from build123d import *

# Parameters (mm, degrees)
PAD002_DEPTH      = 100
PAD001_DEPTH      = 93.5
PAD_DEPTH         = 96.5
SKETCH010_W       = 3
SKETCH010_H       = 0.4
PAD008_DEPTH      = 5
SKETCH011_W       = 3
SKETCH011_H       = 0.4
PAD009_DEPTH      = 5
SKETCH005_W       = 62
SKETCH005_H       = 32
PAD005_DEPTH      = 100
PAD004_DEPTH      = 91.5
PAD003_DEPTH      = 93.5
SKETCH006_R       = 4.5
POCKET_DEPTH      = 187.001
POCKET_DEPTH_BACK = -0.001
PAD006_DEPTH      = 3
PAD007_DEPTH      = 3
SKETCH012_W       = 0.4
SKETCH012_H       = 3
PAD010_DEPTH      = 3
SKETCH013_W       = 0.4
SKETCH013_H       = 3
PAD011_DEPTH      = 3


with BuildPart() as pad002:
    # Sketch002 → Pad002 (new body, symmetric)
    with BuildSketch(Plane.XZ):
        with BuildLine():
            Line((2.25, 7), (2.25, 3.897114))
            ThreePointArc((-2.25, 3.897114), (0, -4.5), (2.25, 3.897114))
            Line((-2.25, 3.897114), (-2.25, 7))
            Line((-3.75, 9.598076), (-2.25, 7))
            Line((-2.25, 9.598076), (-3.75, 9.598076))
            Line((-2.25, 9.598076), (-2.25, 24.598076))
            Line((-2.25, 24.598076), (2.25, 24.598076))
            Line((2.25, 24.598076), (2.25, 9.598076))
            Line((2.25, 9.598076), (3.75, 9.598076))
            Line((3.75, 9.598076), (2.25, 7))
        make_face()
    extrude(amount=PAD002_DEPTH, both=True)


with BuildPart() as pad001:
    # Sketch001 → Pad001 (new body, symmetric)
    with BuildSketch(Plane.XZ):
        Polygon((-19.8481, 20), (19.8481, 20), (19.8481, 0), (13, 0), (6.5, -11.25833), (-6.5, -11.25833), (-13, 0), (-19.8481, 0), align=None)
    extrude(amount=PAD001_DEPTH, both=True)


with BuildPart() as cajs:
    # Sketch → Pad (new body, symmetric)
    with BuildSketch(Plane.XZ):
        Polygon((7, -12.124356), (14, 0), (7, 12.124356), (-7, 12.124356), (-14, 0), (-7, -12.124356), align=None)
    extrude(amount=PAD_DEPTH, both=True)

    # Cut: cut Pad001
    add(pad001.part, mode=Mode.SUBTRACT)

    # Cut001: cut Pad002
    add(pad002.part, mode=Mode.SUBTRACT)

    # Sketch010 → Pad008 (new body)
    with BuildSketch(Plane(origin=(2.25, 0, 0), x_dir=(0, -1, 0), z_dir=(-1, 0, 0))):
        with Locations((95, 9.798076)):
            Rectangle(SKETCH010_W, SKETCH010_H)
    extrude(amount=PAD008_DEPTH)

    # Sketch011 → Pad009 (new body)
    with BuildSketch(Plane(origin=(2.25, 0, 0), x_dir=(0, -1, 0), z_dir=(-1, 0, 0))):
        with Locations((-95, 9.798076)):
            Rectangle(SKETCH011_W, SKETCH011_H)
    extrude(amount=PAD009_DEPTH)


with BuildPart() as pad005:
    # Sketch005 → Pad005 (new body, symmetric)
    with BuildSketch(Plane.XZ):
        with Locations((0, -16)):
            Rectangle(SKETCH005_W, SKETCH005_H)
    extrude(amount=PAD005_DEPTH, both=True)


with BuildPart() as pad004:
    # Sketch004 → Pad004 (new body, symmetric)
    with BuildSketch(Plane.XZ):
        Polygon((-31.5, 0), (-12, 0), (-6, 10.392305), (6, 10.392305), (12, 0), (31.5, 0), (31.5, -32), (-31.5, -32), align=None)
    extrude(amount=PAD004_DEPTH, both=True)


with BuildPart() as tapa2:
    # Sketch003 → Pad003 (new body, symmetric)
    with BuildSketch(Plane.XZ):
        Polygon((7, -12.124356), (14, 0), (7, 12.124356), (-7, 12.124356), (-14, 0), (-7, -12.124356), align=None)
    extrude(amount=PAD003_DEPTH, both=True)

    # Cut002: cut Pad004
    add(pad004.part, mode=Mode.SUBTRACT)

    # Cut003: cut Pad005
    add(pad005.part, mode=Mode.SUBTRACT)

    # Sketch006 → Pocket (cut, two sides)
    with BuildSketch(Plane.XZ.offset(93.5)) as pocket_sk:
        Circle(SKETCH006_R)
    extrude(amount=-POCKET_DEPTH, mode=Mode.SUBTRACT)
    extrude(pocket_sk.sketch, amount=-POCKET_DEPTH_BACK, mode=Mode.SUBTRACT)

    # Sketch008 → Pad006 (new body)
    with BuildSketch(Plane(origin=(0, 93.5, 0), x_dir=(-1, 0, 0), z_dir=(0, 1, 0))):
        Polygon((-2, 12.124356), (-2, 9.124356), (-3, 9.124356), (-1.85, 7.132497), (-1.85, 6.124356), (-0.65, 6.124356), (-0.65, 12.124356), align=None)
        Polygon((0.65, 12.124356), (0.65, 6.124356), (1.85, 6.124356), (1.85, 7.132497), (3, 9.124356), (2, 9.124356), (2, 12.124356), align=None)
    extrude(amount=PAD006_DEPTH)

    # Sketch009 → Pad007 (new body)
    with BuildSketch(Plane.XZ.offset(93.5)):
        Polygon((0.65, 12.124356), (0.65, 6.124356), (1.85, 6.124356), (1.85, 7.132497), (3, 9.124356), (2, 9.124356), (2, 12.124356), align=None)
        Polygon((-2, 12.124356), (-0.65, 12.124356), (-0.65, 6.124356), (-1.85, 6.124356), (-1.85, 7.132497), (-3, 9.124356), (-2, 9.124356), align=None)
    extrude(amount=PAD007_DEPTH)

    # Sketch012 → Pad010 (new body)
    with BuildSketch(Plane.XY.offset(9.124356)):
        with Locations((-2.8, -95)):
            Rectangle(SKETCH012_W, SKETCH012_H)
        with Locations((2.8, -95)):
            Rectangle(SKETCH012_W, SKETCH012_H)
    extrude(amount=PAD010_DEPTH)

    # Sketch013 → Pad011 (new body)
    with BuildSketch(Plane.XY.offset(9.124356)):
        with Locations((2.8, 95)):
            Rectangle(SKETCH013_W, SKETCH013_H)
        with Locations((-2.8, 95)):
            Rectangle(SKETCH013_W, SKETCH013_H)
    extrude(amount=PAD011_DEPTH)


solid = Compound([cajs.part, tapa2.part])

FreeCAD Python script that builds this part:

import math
import FreeCAD as App
import Part
import Sketcher
from FreeCAD import Vector
Q = App.Units.Quantity

doc = App.newDocument("Part")
body = doc.addObject("PartDesign::Body", "Body")

# Sketch on XZ plane
sketch1 = doc.addObject("Sketcher::SketchObject", "Sketch")
body.addObject(sketch1)
sketch1.AttachmentSupport = (doc.XZ_Plane, [""])
sketch1.MapMode = "FlatFace"
sketch1.addGeometry([
    Part.LineSegment(Vector(2.25, 3.897114, 0), Vector(2.25, 7, 0)),  # 0
    Part.LineSegment(Vector(2.25, 7, 0), Vector(3.75, 9.598076, 0)),  # 1
    Part.LineSegment(Vector(3.75, 9.598076, 0), Vector(2.25, 9.598076, 0)),  # 2
    Part.LineSegment(Vector(2.25, 9.598076, 0), Vector(2.25, 24.598076, 0)),  # 3
    Part.LineSegment(Vector(2.25, 24.598076, 0), Vector(-2.25, 24.598076, 0)),  # 4
    Part.LineSegment(Vector(-2.25, 24.598076, 0), Vector(-2.25, 9.598076, 0)),  # 5
    Part.LineSegment(Vector(-2.25, 9.598076, 0), Vector(-3.75, 9.598076, 0)),  # 6
    Part.LineSegment(Vector(-3.75, 9.598076, 0), Vector(-2.25, 7, 0)),  # 7
    Part.LineSegment(Vector(-2.25, 7, 0), Vector(-2.25, 3.897114, 0)),  # 8
    Part.ArcOfCircle(Part.Circle(Vector(0, 0, 0), Vector(0, 0, 1), 4.5), math.radians(120.000001), math.radians(419.999999)),  # 9
], False)
sketch1.addConstraint([
    Sketcher.Constraint("Coincident", 0, 2, 1, 1),
    Sketcher.Constraint("Coincident", 1, 2, 2, 1),
    Sketcher.Constraint("Coincident", 2, 2, 3, 1),
    Sketcher.Constraint("Coincident", 3, 2, 4, 1),
    Sketcher.Constraint("Coincident", 4, 2, 5, 1),
    Sketcher.Constraint("Coincident", 5, 2, 6, 1),
    Sketcher.Constraint("Coincident", 6, 2, 7, 1),
    Sketcher.Constraint("Coincident", 7, 2, 8, 1),
    Sketcher.Constraint("Coincident", 8, 2, 9, 1),
    Sketcher.Constraint("Coincident", 9, 2, 0, 1),
    Sketcher.Constraint("Vertical", 0),
    Sketcher.Constraint("Horizontal", 2),
    Sketcher.Constraint("Vertical", 3),
    Sketcher.Constraint("Horizontal", 4),
    Sketcher.Constraint("Vertical", 5),
    Sketcher.Constraint("Horizontal", 6),
    Sketcher.Constraint("Vertical", 8),
    Sketcher.Constraint("Coincident", 9, 3, -1, 1),
    Sketcher.Constraint("Symmetric", 2, 2, 5, 2, -2),
    Sketcher.Constraint("Symmetric", 0, 2, 7, 2, -2),
    Sketcher.Constraint("Vertical", 0, 2, 2, 2),
    Sketcher.Constraint("Equal", 2, 6),
    Sketcher.Constraint("Radius", 9, 4.5),
    Sketcher.Constraint("DistanceY", 3, 1, 3, 2, 15.0),
    Sketcher.Constraint("Angle", 1, Q("59.999998 deg")),
    Sketcher.Constraint("Distance", 1, 3.0),
    Sketcher.Constraint("DistanceX", 4, 2, 4, 1, 4.5),
    Sketcher.Constraint("DistanceY", -1, 1, 0, 2, 7.0),
])
pad1 = doc.addObject("PartDesign::Pad", "Pad")
body.addObject(pad1)
pad1.Profile = sketch1
pad1.Length = 200
pad1.Midplane = True
body2 = doc.addObject("PartDesign::Body", "Body001")

# Sketch on XZ plane
sketch2 = doc.addObject("Sketcher::SketchObject", "Sketch001")
body2.addObject(sketch2)
sketch2.AttachmentSupport = (doc.getObject("XZ_Plane001"), [""])
sketch2.MapMode = "FlatFace"
sketch2.addGeometry([
    Part.LineSegment(Vector(19.8481, 20, 0), Vector(-19.8481, 20, 0)),  # 0
    Part.LineSegment(Vector(-19.8481, 20, 0), Vector(-19.8481, 0, 0)),  # 1
    Part.LineSegment(Vector(-19.8481, 0, 0), Vector(-13, 0, 0)),  # 2
    Part.LineSegment(Vector(-13, 0, 0), Vector(-6.5, -11.25833, 0)),  # 3
    Part.LineSegment(Vector(-6.5, -11.25833, 0), Vector(6.5, -11.25833, 0)),  # 4
    Part.LineSegment(Vector(6.5, -11.25833, 0), Vector(13, 0, 0)),  # 5
    Part.LineSegment(Vector(13, 0, 0), Vector(19.8481, 0, 0)),  # 6
    Part.LineSegment(Vector(19.8481, 0, 0), Vector(19.8481, 20, 0)),  # 7
], False)
sketch2.addConstraint([
    Sketcher.Constraint("Coincident", 0, 2, 1, 1),
    Sketcher.Constraint("Coincident", 1, 2, 2, 1),
    Sketcher.Constraint("Coincident", 2, 2, 3, 1),
    Sketcher.Constraint("Coincident", 3, 2, 4, 1),
    Sketcher.Constraint("Coincident", 4, 2, 5, 1),
    Sketcher.Constraint("Coincident", 5, 2, 6, 1),
    Sketcher.Constraint("Coincident", 6, 2, 7, 1),
    Sketcher.Constraint("Coincident", 7, 2, 0, 1),
    Sketcher.Constraint("Horizontal", 0),
    Sketcher.Constraint("Vertical", 1),
    Sketcher.Constraint("Horizontal", 2),
    Sketcher.Constraint("Horizontal", 4),
    Sketcher.Constraint("Horizontal", 6),
    Sketcher.Constraint("Vertical", 7),
    Sketcher.Constraint("Symmetric", 2, 2, 5, 2, -1, 1),
    Sketcher.Constraint("Symmetric", 1, 2, 6, 2, -2),
    Sketcher.Constraint("Equal", 3, 5),
    Sketcher.Constraint("DistanceX", 4, 1, 4, 2, 13.0),
    Sketcher.Constraint("DistanceY", 1, 2, 1, 1, 20.0),
    Sketcher.Constraint("Angle", 3, Q("-59.999999 deg")),
    Sketcher.Constraint("Distance", 3, 13.0),
    Sketcher.Constraint("DistanceX", 0, 2, 0, 1, 39.6962),
])
pad2 = doc.addObject("PartDesign::Pad", "Pad001")
body2.addObject(pad2)
pad2.Profile = sketch2
pad2.Length = 187
pad2.Midplane = True
body3 = doc.addObject("PartDesign::Body", "Body002")

# Sketch on XZ plane
sketch3 = doc.addObject("Sketcher::SketchObject", "Sketch002")
body3.addObject(sketch3)
sketch3.AttachmentSupport = (doc.getObject("XZ_Plane002"), [""])
sketch3.MapMode = "FlatFace"
sketch3.addGeometry([
    Part.LineSegment(Vector(7, -12.124356, 0), Vector(14, 0, 0)),  # 0
    Part.LineSegment(Vector(14, 0, 0), Vector(7, 12.124356, 0)),  # 1
    Part.LineSegment(Vector(7, 12.124356, 0), Vector(-7, 12.124356, 0)),  # 2
    Part.LineSegment(Vector(-7, 12.124356, 0), Vector(-14, 0, 0)),  # 3
    Part.LineSegment(Vector(-14, 0, 0), Vector(-7, -12.124356, 0)),  # 4
    Part.LineSegment(Vector(-7, -12.124356, 0), Vector(7, -12.124356, 0)),  # 5
], False)
sketch3.addConstraint([
    Sketcher.Constraint("Coincident", 0, 2, 1, 1),
    Sketcher.Constraint("Coincident", 1, 2, 2, 1),
    Sketcher.Constraint("Coincident", 2, 2, 3, 1),
    Sketcher.Constraint("Coincident", 3, 2, 4, 1),
    Sketcher.Constraint("Coincident", 4, 2, 5, 1),
    Sketcher.Constraint("Coincident", 5, 2, 0, 1),
    Sketcher.Constraint("Horizontal", 2),
    Sketcher.Constraint("Horizontal", 5),
    Sketcher.Constraint("Symmetric", 0, 2, 3, 2, -1, 1),
    Sketcher.Constraint("Symmetric", 1, 2, 4, 2, -1, 1),
    Sketcher.Constraint("PointOnObject", 0, 2, -1),
    Sketcher.Constraint("Parallel", 0, 3),
    Sketcher.Constraint("Vertical", 2, 2, 4, 2),
    Sketcher.Constraint("DistanceX", 2, 2, 2, 1, 14.0),
    Sketcher.Constraint("Angle", 0, Q("60.000001 deg")),
    Sketcher.Constraint("Distance", 0, 14.0),
])
pad3 = doc.addObject("PartDesign::Pad", "Pad002")
body3.addObject(pad3)
pad3.Profile = sketch3
pad3.Length = 193
pad3.Midplane = True
doc.recompute()

boolean = doc.addObject("PartDesign::Boolean", "Boolean")
body3.addObject(boolean)
boolean.Type = "Cut"
boolean.addObjects([body2])
doc.recompute()

boolean2 = doc.addObject("PartDesign::Boolean", "Boolean001")
body3.addObject(boolean2)
boolean2.Type = "Cut"
boolean2.addObjects([body])

# Sketch on YZ plane
sketch4 = doc.addObject("Sketcher::SketchObject", "Sketch003")
body3.addObject(sketch4)
sketch4.AttachmentSupport = (doc.getObject("YZ_Plane002"), [""])
sketch4.MapMode = "FlatFace"
sketch4.AttachmentOffset = App.Placement(Vector(0, 0, 2.25), App.Rotation())
sketch4.addGeometry([
    Part.LineSegment(Vector(-93.5, 9.998076, 0), Vector(-93.5, 9.598076, 0)),
    Part.LineSegment(Vector(-93.5, 9.598076, 0), Vector(-96.5, 9.598076, 0)),
    Part.LineSegment(Vector(-96.5, 9.598076, 0), Vector(-96.5, 9.998076, 0)),
    Part.LineSegment(Vector(-96.5, 9.998076, 0), Vector(-93.5, 9.998076, 0)),
], False)
sketch4.addConstraint([
    Sketcher.Constraint("Coincident", 0, 2, 1, 1),
    Sketcher.Constraint("Coincident", 1, 2, 2, 1),
    Sketcher.Constraint("Coincident", 2, 2, 3, 1),
    Sketcher.Constraint("Coincident", 3, 2, 0, 1),
    Sketcher.Constraint("Vertical", 0),
    Sketcher.Constraint("Horizontal", 1),
    Sketcher.Constraint("Vertical", 2),
    Sketcher.Constraint("Horizontal", 3),
    Sketcher.Constraint("DistanceX", 1, 2, 1, 1, 3.0),
    Sketcher.Constraint("DistanceY", 0, 2, 0, 1, 0.4),
    Sketcher.Constraint("DistanceX", 0, 2, -1, 1, 93.5),
    Sketcher.Constraint("DistanceY", -1, 1, 0, 2, 9.598076),
])
pad4 = doc.addObject("PartDesign::Pad", "Pad003")
body3.addObject(pad4)
pad4.Profile = sketch4
pad4.Length = 5
pad4.Reversed = True

# Sketch on YZ plane
sketch5 = doc.addObject("Sketcher::SketchObject", "Sketch004")
body3.addObject(sketch5)
sketch5.AttachmentSupport = (doc.getObject("YZ_Plane002"), [""])
sketch5.MapMode = "FlatFace"
sketch5.AttachmentOffset = App.Placement(Vector(0, 0, 2.25), App.Rotation())
sketch5.addGeometry([
    Part.LineSegment(Vector(96.5, 9.998076, 0), Vector(96.5, 9.598076, 0)),
    Part.LineSegment(Vector(96.5, 9.598076, 0), Vector(93.5, 9.598076, 0)),
    Part.LineSegment(Vector(93.5, 9.598076, 0), Vector(93.5, 9.998076, 0)),
    Part.LineSegment(Vector(93.5, 9.998076, 0), Vector(96.5, 9.998076, 0)),
], False)
sketch5.addConstraint([
    Sketcher.Constraint("Coincident", 0, 2, 1, 1),
    Sketcher.Constraint("Coincident", 1, 2, 2, 1),
    Sketcher.Constraint("Coincident", 2, 2, 3, 1),
    Sketcher.Constraint("Coincident", 3, 2, 0, 1),
    Sketcher.Constraint("Vertical", 0),
    Sketcher.Constraint("Horizontal", 1),
    Sketcher.Constraint("Vertical", 2),
    Sketcher.Constraint("Horizontal", 3),
    Sketcher.Constraint("DistanceX", 1, 2, 1, 1, 3.0),
    Sketcher.Constraint("DistanceY", 0, 2, 0, 1, 0.4),
    Sketcher.Constraint("DistanceX", -1, 1, 0, 2, 96.5),
    Sketcher.Constraint("DistanceY", -1, 1, 0, 2, 9.598076),
])
pad5 = doc.addObject("PartDesign::Pad", "Pad004")
body3.addObject(pad5)
pad5.Profile = sketch5
pad5.Length = 5
pad5.Reversed = True
body4 = doc.addObject("PartDesign::Body", "Body003")

# Sketch on XZ plane
sketch6 = doc.addObject("Sketcher::SketchObject", "Sketch005")
body4.addObject(sketch6)
sketch6.AttachmentSupport = (doc.getObject("XZ_Plane003"), [""])
sketch6.MapMode = "FlatFace"
sketch6.addGeometry([
    Part.LineSegment(Vector(-31, 0, 0), Vector(-31, -32, 0)),
    Part.LineSegment(Vector(-31, -32, 0), Vector(31, -32, 0)),
    Part.LineSegment(Vector(31, -32, 0), Vector(31, 0, 0)),
    Part.LineSegment(Vector(31, 0, 0), Vector(-31, 0, 0)),
], False)
sketch6.addConstraint([
    Sketcher.Constraint("Coincident", 0, 2, 1, 1),
    Sketcher.Constraint("Coincident", 1, 2, 2, 1),
    Sketcher.Constraint("Coincident", 2, 2, 3, 1),
    Sketcher.Constraint("Coincident", 3, 2, 0, 1),
    Sketcher.Constraint("Vertical", 0),
    Sketcher.Constraint("Horizontal", 1),
    Sketcher.Constraint("Vertical", 2),
    Sketcher.Constraint("Horizontal", 3),
    Sketcher.Constraint("Symmetric", 2, 2, 3, 2, -1, 1),
    Sketcher.Constraint("DistanceX", 1, 1, 1, 2, 62.0),
    Sketcher.Constraint("DistanceY", 0, 2, 0, 1, 32.0),
])
pad6 = doc.addObject("PartDesign::Pad", "Pad005")
body4.addObject(pad6)
pad6.Profile = sketch6
pad6.Length = 200
pad6.Midplane = True
body5 = doc.addObject("PartDesign::Body", "Body004")

# Sketch on XZ plane
sketch7 = doc.addObject("Sketcher::SketchObject", "Sketch006")
body5.addObject(sketch7)
sketch7.AttachmentSupport = (doc.getObject("XZ_Plane004"), [""])
sketch7.MapMode = "FlatFace"
sketch7.addGeometry([
    Part.LineSegment(Vector(-12, 0, 0), Vector(-31.5, 0, 0)),  # 0
    Part.LineSegment(Vector(-31.5, 0, 0), Vector(-31.5, -32, 0)),  # 1
    Part.LineSegment(Vector(-31.5, -32, 0), Vector(31.5, -32, 0)),  # 2
    Part.LineSegment(Vector(31.5, -32, 0), Vector(31.5, 0, 0)),  # 3
    Part.LineSegment(Vector(31.5, 0, 0), Vector(12, 0, 0)),  # 4
    Part.LineSegment(Vector(12, 0, 0), Vector(6, 10.392305, 0)),  # 5
    Part.LineSegment(Vector(6, 10.392305, 0), Vector(-6, 10.392305, 0)),  # 6
    Part.LineSegment(Vector(-6, 10.392305, 0), Vector(-12, 0, 0)),  # 7
], False)
sketch7.addConstraint([
    Sketcher.Constraint("Coincident", 0, 2, 1, 1),
    Sketcher.Constraint("Coincident", 1, 2, 2, 1),
    Sketcher.Constraint("Coincident", 2, 2, 3, 1),
    Sketcher.Constraint("Coincident", 3, 2, 4, 1),
    Sketcher.Constraint("Coincident", 4, 2, 5, 1),
    Sketcher.Constraint("Coincident", 5, 2, 6, 1),
    Sketcher.Constraint("Coincident", 6, 2, 7, 1),
    Sketcher.Constraint("Coincident", 7, 2, 0, 1),
    Sketcher.Constraint("Horizontal", 0),
    Sketcher.Constraint("Vertical", 1),
    Sketcher.Constraint("Horizontal", 2),
    Sketcher.Constraint("Vertical", 3),
    Sketcher.Constraint("Horizontal", 4),
    Sketcher.Constraint("Horizontal", 6),
    Sketcher.Constraint("Symmetric", 0, 2, 3, 2, -1, 1),
    Sketcher.Constraint("Symmetric", 4, 2, 7, 2, -2),
    Sketcher.Constraint("Equal", 5, 7),
    Sketcher.Constraint("DistanceX", 2, 1, 2, 2, 63.0),
    Sketcher.Constraint("DistanceX", 6, 2, 6, 1, 12.0),
    Sketcher.Constraint("DistanceY", 1, 2, 1, 1, 32.0),
    Sketcher.Constraint("Angle", 5, Q("120 deg")),
    Sketcher.Constraint("Distance", 5, 12.0),
])
pad7 = doc.addObject("PartDesign::Pad", "Pad006")
body5.addObject(pad7)
pad7.Profile = sketch7
pad7.Length = 183
pad7.Midplane = True
body6 = doc.addObject("PartDesign::Body", "Body005")

# Sketch on XZ plane
sketch8 = doc.addObject("Sketcher::SketchObject", "Sketch007")
body6.addObject(sketch8)
sketch8.AttachmentSupport = (doc.getObject("XZ_Plane005"), [""])
sketch8.MapMode = "FlatFace"
sketch8.addGeometry([
    Part.LineSegment(Vector(7, -12.124356, 0), Vector(14, 0, 0)),  # 0
    Part.LineSegment(Vector(14, 0, 0), Vector(7, 12.124356, 0)),  # 1
    Part.LineSegment(Vector(7, 12.124356, 0), Vector(-7, 12.124356, 0)),  # 2
    Part.LineSegment(Vector(-7, 12.124356, 0), Vector(-14, 0, 0)),  # 3
    Part.LineSegment(Vector(-14, 0, 0), Vector(-7, -12.124356, 0)),  # 4
    Part.LineSegment(Vector(-7, -12.124356, 0), Vector(7, -12.124356, 0)),  # 5
], False)
sketch8.addConstraint([
    Sketcher.Constraint("Coincident", 0, 2, 1, 1),
    Sketcher.Constraint("Coincident", 1, 2, 2, 1),
    Sketcher.Constraint("Coincident", 2, 2, 3, 1),
    Sketcher.Constraint("Coincident", 3, 2, 4, 1),
    Sketcher.Constraint("Coincident", 4, 2, 5, 1),
    Sketcher.Constraint("Coincident", 5, 2, 0, 1),
    Sketcher.Constraint("Horizontal", 2),
    Sketcher.Constraint("Horizontal", 5),
    Sketcher.Constraint("Symmetric", 0, 2, 3, 2, -1, 1),
    Sketcher.Constraint("Symmetric", 1, 2, 4, 2, -1, 1),
    Sketcher.Constraint("PointOnObject", 0, 2, -1),
    Sketcher.Constraint("Parallel", 0, 3),
    Sketcher.Constraint("Vertical", 2, 2, 4, 2),
    Sketcher.Constraint("DistanceX", 2, 2, 2, 1, 14.0),
    Sketcher.Constraint("Angle", 0, Q("60.000001 deg")),
    Sketcher.Constraint("Distance", 0, 14.0),
])
pad8 = doc.addObject("PartDesign::Pad", "Pad007")
body6.addObject(pad8)
pad8.Profile = sketch8
pad8.Length = 187
pad8.Midplane = True
doc.recompute()

boolean3 = doc.addObject("PartDesign::Boolean", "Boolean002")
body6.addObject(boolean3)
boolean3.Type = "Cut"
boolean3.addObjects([body5])
doc.recompute()

boolean4 = doc.addObject("PartDesign::Boolean", "Boolean003")
body6.addObject(boolean4)
boolean4.Type = "Cut"
boolean4.addObjects([body4])

# Sketch on XZ plane
sketch9 = doc.addObject("Sketcher::SketchObject", "Sketch008")
body6.addObject(sketch9)
sketch9.AttachmentSupport = (doc.getObject("XZ_Plane005"), [""])
sketch9.MapMode = "FlatFace"
sketch9.AttachmentOffset = App.Placement(Vector(0, 0, 93.5), App.Rotation())
sketch9.addGeometry(Part.Circle(Vector(0, 0, 0), Vector(0, 0, 1), 4.5), False)
sketch9.addConstraint([
    Sketcher.Constraint("Coincident", 0, 3, -1, 1),
    Sketcher.Constraint("Diameter", 0, 9.0),
])
pocket1 = doc.addObject("PartDesign::Pocket", "Pocket")
body6.addObject(pocket1)
pocket1.Profile = sketch9
pocket1.Type = "ThroughAll"
pocket1.Midplane = True

# Sketch on XZ plane
sketch10 = doc.addObject("Sketcher::SketchObject", "Sketch009")
body6.addObject(sketch10)
sketch10.AttachmentSupport = (doc.getObject("XZ_Plane005"), [""])
sketch10.MapMode = "FlatFace"
sketch10.AttachmentOffset = App.Placement(Vector(0, 0, -93.5), App.Rotation())
sketch10.addGeometry([
    Part.LineSegment(Vector(2, 12.124356, 0), Vector(2, 9.124356, 0)),  # 0
    Part.LineSegment(Vector(2, 9.124356, 0), Vector(3, 9.124356, 0)),  # 1
    Part.LineSegment(Vector(3, 9.124356, 0), Vector(1.85, 7.132497, 0)),  # 2
    Part.LineSegment(Vector(1.85, 7.132497, 0), Vector(1.85, 6.124356, 0)),  # 3
    Part.LineSegment(Vector(1.85, 6.124356, 0), Vector(0.65, 6.124356, 0)),  # 4
    Part.LineSegment(Vector(0.65, 6.124356, 0), Vector(0.65, 12.124356, 0)),  # 5
    Part.LineSegment(Vector(0.65, 12.124356, 0), Vector(2, 12.124356, 0)),  # 6
    Part.LineSegment(Vector(-0.65, 12.124356, 0), Vector(-0.65, 6.124356, 0)),  # 7
    Part.LineSegment(Vector(-0.65, 6.124356, 0), Vector(-1.85, 6.124356, 0)),  # 8
    Part.LineSegment(Vector(-1.85, 6.124356, 0), Vector(-1.85, 7.132497, 0)),  # 9
    Part.LineSegment(Vector(-1.85, 7.132497, 0), Vector(-3, 9.124356, 0)),  # 10
    Part.LineSegment(Vector(-3, 9.124356, 0), Vector(-2, 9.124356, 0)),  # 11
    Part.LineSegment(Vector(-2, 9.124356, 0), Vector(-2, 12.124356, 0)),  # 12
    Part.LineSegment(Vector(-2, 12.124356, 0), Vector(-0.65, 12.124356, 0)),  # 13
], False)
sketch10.addConstraint([
    Sketcher.Constraint("Coincident", 0, 2, 1, 1),
    Sketcher.Constraint("Coincident", 1, 2, 2, 1),
    Sketcher.Constraint("Coincident", 2, 2, 3, 1),
    Sketcher.Constraint("Coincident", 3, 2, 4, 1),
    Sketcher.Constraint("Coincident", 4, 2, 5, 1),
    Sketcher.Constraint("Coincident", 5, 2, 6, 1),
    Sketcher.Constraint("Coincident", 6, 2, 0, 1),
    Sketcher.Constraint("Coincident", 7, 2, 8, 1),
    Sketcher.Constraint("Coincident", 8, 2, 9, 1),
    Sketcher.Constraint("Coincident", 9, 2, 10, 1),
    Sketcher.Constraint("Coincident", 10, 2, 11, 1),
    Sketcher.Constraint("Coincident", 11, 2, 12, 1),
    Sketcher.Constraint("Coincident", 12, 2, 13, 1),
    Sketcher.Constraint("Coincident", 13, 2, 7, 1),
    Sketcher.Constraint("Vertical", 0),
    Sketcher.Constraint("Horizontal", 1),
    Sketcher.Constraint("Vertical", 3),
    Sketcher.Constraint("Horizontal", 4),
    Sketcher.Constraint("Vertical", 5),
    Sketcher.Constraint("Horizontal", 6),
    Sketcher.Constraint("Vertical", 7),
    Sketcher.Constraint("Horizontal", 8),
    Sketcher.Constraint("Vertical", 9),
    Sketcher.Constraint("Horizontal", 11),
    Sketcher.Constraint("Vertical", 12),
    Sketcher.Constraint("Horizontal", 13),
    Sketcher.Constraint("Symmetric", 4, 2, 7, 2, -2),
    Sketcher.Constraint("Symmetric", 2, 2, 9, 2, -2),
    Sketcher.Constraint("Symmetric", 1, 2, 10, 2, -2),
    Sketcher.Constraint("Symmetric", 6, 2, 12, 2, -2),
    Sketcher.Constraint("DistanceX", 1, 1, 1, 2, 1.0),
    Sketcher.Constraint("DistanceY", 0, 2, 0, 1, 3.0),
    Sketcher.Constraint("DistanceY", 5, 1, 5, 2, 6.0),
    Sketcher.Constraint("Angle", 2, Q("-119.999993 deg")),
    Sketcher.Constraint("DistanceX", 4, 2, 4, 1, 1.2),
    Sketcher.Constraint("DistanceX", -1, 1, 0, 2, 2.0),
    Sketcher.Constraint("Distance", 2, 2.3),
    Sketcher.Constraint("DistanceY", -1, 1, 0, 2, 9.124356),
])
pad9 = doc.addObject("PartDesign::Pad", "Pad008")
body6.addObject(pad9)
pad9.Profile = sketch10
pad9.Length = 3
pad9.Reversed = True

# Sketch on XZ plane
sketch11 = doc.addObject("Sketcher::SketchObject", "Sketch010")
body6.addObject(sketch11)
sketch11.AttachmentSupport = (doc.getObject("XZ_Plane005"), [""])
sketch11.MapMode = "FlatFace"
sketch11.AttachmentOffset = App.Placement(Vector(0, 0, 93.5), App.Rotation())
sketch11.addGeometry([
    Part.LineSegment(Vector(0.65, 12.124356, 0), Vector(0.65, 6.124356, 0)),  # 0
    Part.LineSegment(Vector(0.65, 6.124356, 0), Vector(1.85, 6.124356, 0)),  # 1
    Part.LineSegment(Vector(1.85, 6.124356, 0), Vector(1.85, 7.132497, 0)),  # 2
    Part.LineSegment(Vector(1.85, 7.132497, 0), Vector(3, 9.124356, 0)),  # 3
    Part.LineSegment(Vector(3, 9.124356, 0), Vector(2, 9.124356, 0)),  # 4
    Part.LineSegment(Vector(2, 9.124356, 0), Vector(2, 12.124356, 0)),  # 5
    Part.LineSegment(Vector(2, 12.124356, 0), Vector(0.65, 12.124356, 0)),  # 6
    Part.LineSegment(Vector(-0.65, 12.124356, 0), Vector(-2, 12.124356, 0)),  # 7
    Part.LineSegment(Vector(-2, 12.124356, 0), Vector(-2, 9.124356, 0)),  # 8
    Part.LineSegment(Vector(-2, 9.124356, 0), Vector(-3, 9.124356, 0)),  # 9
    Part.LineSegment(Vector(-3, 9.124356, 0), Vector(-1.85, 7.132497, 0)),  # 10
    Part.LineSegment(Vector(-1.85, 7.132497, 0), Vector(-1.85, 6.124356, 0)),  # 11
    Part.LineSegment(Vector(-1.85, 6.124356, 0), Vector(-0.65, 6.124356, 0)),  # 12
    Part.LineSegment(Vector(-0.65, 6.124356, 0), Vector(-0.65, 12.124356, 0)),  # 13
], False)
sketch11.addConstraint([
    Sketcher.Constraint("Coincident", 0, 2, 1, 1),
    Sketcher.Constraint("Coincident", 1, 2, 2, 1),
    Sketcher.Constraint("Coincident", 2, 2, 3, 1),
    Sketcher.Constraint("Coincident", 3, 2, 4, 1),
    Sketcher.Constraint("Coincident", 4, 2, 5, 1),
    Sketcher.Constraint("Coincident", 5, 2, 6, 1),
    Sketcher.Constraint("Coincident", 6, 2, 0, 1),
    Sketcher.Constraint("Coincident", 7, 2, 8, 1),
    Sketcher.Constraint("Coincident", 8, 2, 9, 1),
    Sketcher.Constraint("Coincident", 9, 2, 10, 1),
    Sketcher.Constraint("Coincident", 10, 2, 11, 1),
    Sketcher.Constraint("Coincident", 11, 2, 12, 1),
    Sketcher.Constraint("Coincident", 12, 2, 13, 1),
    Sketcher.Constraint("Coincident", 13, 2, 7, 1),
    Sketcher.Constraint("Vertical", 0),
    Sketcher.Constraint("Horizontal", 1),
    Sketcher.Constraint("Vertical", 2),
    Sketcher.Constraint("Horizontal", 4),
    Sketcher.Constraint("Vertical", 5),
    Sketcher.Constraint("Horizontal", 6),
    Sketcher.Constraint("Horizontal", 7),
    Sketcher.Constraint("Vertical", 8),
    Sketcher.Constraint("Horizontal", 9),
    Sketcher.Constraint("Vertical", 11),
    Sketcher.Constraint("Horizontal", 12),
    Sketcher.Constraint("Vertical", 13),
    Sketcher.Constraint("Symmetric", 5, 2, 7, 2, -2),
    Sketcher.Constraint("Symmetric", 3, 2, 9, 2, -2),
    Sketcher.Constraint("Symmetric", 2, 2, 10, 2, -2),
    Sketcher.Constraint("Symmetric", 0, 2, 12, 2, -2),
    Sketcher.Constraint("DistanceX", 4, 2, 4, 1, 1.0),
    Sketcher.Constraint("DistanceY", 0, 2, 0, 1, 6.0),
    Sketcher.Constraint("DistanceY", 5, 1, 5, 2, 3.0),
    Sketcher.Constraint("Angle", 3, Q("60.000007 deg")),
    Sketcher.Constraint("DistanceX", 1, 1, 1, 2, 1.2),
    Sketcher.Constraint("DistanceX", -1, 1, 3, 2, 3.0),
    Sketcher.Constraint("Distance", 3, 2.3),
    Sketcher.Constraint("DistanceY", -1, 1, 0, 2, 6.124356),
])
pad10 = doc.addObject("PartDesign::Pad", "Pad009")
body6.addObject(pad10)
pad10.Profile = sketch11
pad10.Length = 3

# Sketch on XY plane
sketch12 = doc.addObject("Sketcher::SketchObject", "Sketch011")
body6.addObject(sketch12)
sketch12.AttachmentSupport = (doc.getObject("XY_Plane005"), [""])
sketch12.MapMode = "FlatFace"
sketch12.AttachmentOffset = App.Placement(Vector(0, 0, 9.124356), App.Rotation())
sketch12.addGeometry([
    Part.LineSegment(Vector(-3, -93.5, 0), Vector(-3, -96.5, 0)),  # 0
    Part.LineSegment(Vector(-3, -96.5, 0), Vector(-2.6, -96.5, 0)),  # 1
    Part.LineSegment(Vector(-2.6, -96.5, 0), Vector(-2.6, -93.5, 0)),  # 2
    Part.LineSegment(Vector(-2.6, -93.5, 0), Vector(-3, -93.5, 0)),  # 3
    Part.LineSegment(Vector(2.6, -93.5, 0), Vector(2.6, -96.5, 0)),  # 4
    Part.LineSegment(Vector(2.6, -96.5, 0), Vector(3, -96.5, 0)),  # 5
    Part.LineSegment(Vector(3, -96.5, 0), Vector(3, -93.5, 0)),  # 6
    Part.LineSegment(Vector(3, -93.5, 0), Vector(2.6, -93.5, 0)),  # 7
], False)
sketch12.addConstraint([
    Sketcher.Constraint("Coincident", 0, 2, 1, 1),
    Sketcher.Constraint("Coincident", 1, 2, 2, 1),
    Sketcher.Constraint("Coincident", 2, 2, 3, 1),
    Sketcher.Constraint("Coincident", 3, 2, 0, 1),
    Sketcher.Constraint("Coincident", 4, 2, 5, 1),
    Sketcher.Constraint("Coincident", 5, 2, 6, 1),
    Sketcher.Constraint("Coincident", 6, 2, 7, 1),
    Sketcher.Constraint("Coincident", 7, 2, 4, 1),
    Sketcher.Constraint("Vertical", 0),
    Sketcher.Constraint("Horizontal", 1),
    Sketcher.Constraint("Vertical", 2),
    Sketcher.Constraint("Horizontal", 3),
    Sketcher.Constraint("Vertical", 4),
    Sketcher.Constraint("Horizontal", 5),
    Sketcher.Constraint("Vertical", 6),
    Sketcher.Constraint("Horizontal", 7),
    Sketcher.Constraint("Symmetric", 1, 2, 4, 2, -2),
    Sketcher.Constraint("Symmetric", 3, 2, 6, 2, -2),
    Sketcher.Constraint("DistanceY", 0, 2, 0, 1, 3.0),
    Sketcher.Constraint("DistanceX", 1, 1, 1, 2, 0.4),
    Sketcher.Constraint("DistanceX", 0, 2, -1, 1, 3.0),
    Sketcher.Constraint("DistanceY", 0, 2, -1, 1, 96.5),
])
pad11 = doc.addObject("PartDesign::Pad", "Pad010")
body6.addObject(pad11)
pad11.Profile = sketch12
pad11.Length = 3

# Sketch on XY plane
sketch13 = doc.addObject("Sketcher::SketchObject", "Sketch012")
body6.addObject(sketch13)
sketch13.AttachmentSupport = (doc.getObject("XY_Plane005"), [""])
sketch13.MapMode = "FlatFace"
sketch13.AttachmentOffset = App.Placement(Vector(0, 0, 9.124356), App.Rotation())
sketch13.addGeometry([
    Part.LineSegment(Vector(2.6, 96.5, 0), Vector(2.6, 93.5, 0)),  # 0
    Part.LineSegment(Vector(2.6, 93.5, 0), Vector(3, 93.5, 0)),  # 1
    Part.LineSegment(Vector(3, 93.5, 0), Vector(3, 96.5, 0)),  # 2
    Part.LineSegment(Vector(3, 96.5, 0), Vector(2.6, 96.5, 0)),  # 3
    Part.LineSegment(Vector(-3, 96.5, 0), Vector(-3, 93.5, 0)),  # 4
    Part.LineSegment(Vector(-3, 93.5, 0), Vector(-2.6, 93.5, 0)),  # 5
    Part.LineSegment(Vector(-2.6, 93.5, 0), Vector(-2.6, 96.5, 0)),  # 6
    Part.LineSegment(Vector(-2.6, 96.5, 0), Vector(-3, 96.5, 0)),  # 7
], False)
sketch13.addConstraint([
    Sketcher.Constraint("Coincident", 0, 2, 1, 1),
    Sketcher.Constraint("Coincident", 1, 2, 2, 1),
    Sketcher.Constraint("Coincident", 2, 2, 3, 1),
    Sketcher.Constraint("Coincident", 3, 2, 0, 1),
    Sketcher.Constraint("Coincident", 4, 2, 5, 1),
    Sketcher.Constraint("Coincident", 5, 2, 6, 1),
    Sketcher.Constraint("Coincident", 6, 2, 7, 1),
    Sketcher.Constraint("Coincident", 7, 2, 4, 1),
    Sketcher.Constraint("Vertical", 0),
    Sketcher.Constraint("Horizontal", 1),
    Sketcher.Constraint("Vertical", 2),
    Sketcher.Constraint("Horizontal", 3),
    Sketcher.Constraint("Vertical", 4),
    Sketcher.Constraint("Horizontal", 5),
    Sketcher.Constraint("Vertical", 6),
    Sketcher.Constraint("Horizontal", 7),
    Sketcher.Constraint("Symmetric", 1, 2, 4, 2, -2),
    Sketcher.Constraint("Symmetric", 3, 2, 6, 2, -2),
    Sketcher.Constraint("DistanceY", 0, 2, 0, 1, 3.0),
    Sketcher.Constraint("DistanceX", 1, 1, 1, 2, 0.4),
    Sketcher.Constraint("DistanceX", -1, 1, 1, 2, 3.0),
    Sketcher.Constraint("DistanceY", -1, 1, 0, 2, 93.5),
])
pad12 = doc.addObject("PartDesign::Pad", "Pad011")
body6.addObject(pad12)
pad12.Profile = sketch13
pad12.Length = 3

doc.recompute()
